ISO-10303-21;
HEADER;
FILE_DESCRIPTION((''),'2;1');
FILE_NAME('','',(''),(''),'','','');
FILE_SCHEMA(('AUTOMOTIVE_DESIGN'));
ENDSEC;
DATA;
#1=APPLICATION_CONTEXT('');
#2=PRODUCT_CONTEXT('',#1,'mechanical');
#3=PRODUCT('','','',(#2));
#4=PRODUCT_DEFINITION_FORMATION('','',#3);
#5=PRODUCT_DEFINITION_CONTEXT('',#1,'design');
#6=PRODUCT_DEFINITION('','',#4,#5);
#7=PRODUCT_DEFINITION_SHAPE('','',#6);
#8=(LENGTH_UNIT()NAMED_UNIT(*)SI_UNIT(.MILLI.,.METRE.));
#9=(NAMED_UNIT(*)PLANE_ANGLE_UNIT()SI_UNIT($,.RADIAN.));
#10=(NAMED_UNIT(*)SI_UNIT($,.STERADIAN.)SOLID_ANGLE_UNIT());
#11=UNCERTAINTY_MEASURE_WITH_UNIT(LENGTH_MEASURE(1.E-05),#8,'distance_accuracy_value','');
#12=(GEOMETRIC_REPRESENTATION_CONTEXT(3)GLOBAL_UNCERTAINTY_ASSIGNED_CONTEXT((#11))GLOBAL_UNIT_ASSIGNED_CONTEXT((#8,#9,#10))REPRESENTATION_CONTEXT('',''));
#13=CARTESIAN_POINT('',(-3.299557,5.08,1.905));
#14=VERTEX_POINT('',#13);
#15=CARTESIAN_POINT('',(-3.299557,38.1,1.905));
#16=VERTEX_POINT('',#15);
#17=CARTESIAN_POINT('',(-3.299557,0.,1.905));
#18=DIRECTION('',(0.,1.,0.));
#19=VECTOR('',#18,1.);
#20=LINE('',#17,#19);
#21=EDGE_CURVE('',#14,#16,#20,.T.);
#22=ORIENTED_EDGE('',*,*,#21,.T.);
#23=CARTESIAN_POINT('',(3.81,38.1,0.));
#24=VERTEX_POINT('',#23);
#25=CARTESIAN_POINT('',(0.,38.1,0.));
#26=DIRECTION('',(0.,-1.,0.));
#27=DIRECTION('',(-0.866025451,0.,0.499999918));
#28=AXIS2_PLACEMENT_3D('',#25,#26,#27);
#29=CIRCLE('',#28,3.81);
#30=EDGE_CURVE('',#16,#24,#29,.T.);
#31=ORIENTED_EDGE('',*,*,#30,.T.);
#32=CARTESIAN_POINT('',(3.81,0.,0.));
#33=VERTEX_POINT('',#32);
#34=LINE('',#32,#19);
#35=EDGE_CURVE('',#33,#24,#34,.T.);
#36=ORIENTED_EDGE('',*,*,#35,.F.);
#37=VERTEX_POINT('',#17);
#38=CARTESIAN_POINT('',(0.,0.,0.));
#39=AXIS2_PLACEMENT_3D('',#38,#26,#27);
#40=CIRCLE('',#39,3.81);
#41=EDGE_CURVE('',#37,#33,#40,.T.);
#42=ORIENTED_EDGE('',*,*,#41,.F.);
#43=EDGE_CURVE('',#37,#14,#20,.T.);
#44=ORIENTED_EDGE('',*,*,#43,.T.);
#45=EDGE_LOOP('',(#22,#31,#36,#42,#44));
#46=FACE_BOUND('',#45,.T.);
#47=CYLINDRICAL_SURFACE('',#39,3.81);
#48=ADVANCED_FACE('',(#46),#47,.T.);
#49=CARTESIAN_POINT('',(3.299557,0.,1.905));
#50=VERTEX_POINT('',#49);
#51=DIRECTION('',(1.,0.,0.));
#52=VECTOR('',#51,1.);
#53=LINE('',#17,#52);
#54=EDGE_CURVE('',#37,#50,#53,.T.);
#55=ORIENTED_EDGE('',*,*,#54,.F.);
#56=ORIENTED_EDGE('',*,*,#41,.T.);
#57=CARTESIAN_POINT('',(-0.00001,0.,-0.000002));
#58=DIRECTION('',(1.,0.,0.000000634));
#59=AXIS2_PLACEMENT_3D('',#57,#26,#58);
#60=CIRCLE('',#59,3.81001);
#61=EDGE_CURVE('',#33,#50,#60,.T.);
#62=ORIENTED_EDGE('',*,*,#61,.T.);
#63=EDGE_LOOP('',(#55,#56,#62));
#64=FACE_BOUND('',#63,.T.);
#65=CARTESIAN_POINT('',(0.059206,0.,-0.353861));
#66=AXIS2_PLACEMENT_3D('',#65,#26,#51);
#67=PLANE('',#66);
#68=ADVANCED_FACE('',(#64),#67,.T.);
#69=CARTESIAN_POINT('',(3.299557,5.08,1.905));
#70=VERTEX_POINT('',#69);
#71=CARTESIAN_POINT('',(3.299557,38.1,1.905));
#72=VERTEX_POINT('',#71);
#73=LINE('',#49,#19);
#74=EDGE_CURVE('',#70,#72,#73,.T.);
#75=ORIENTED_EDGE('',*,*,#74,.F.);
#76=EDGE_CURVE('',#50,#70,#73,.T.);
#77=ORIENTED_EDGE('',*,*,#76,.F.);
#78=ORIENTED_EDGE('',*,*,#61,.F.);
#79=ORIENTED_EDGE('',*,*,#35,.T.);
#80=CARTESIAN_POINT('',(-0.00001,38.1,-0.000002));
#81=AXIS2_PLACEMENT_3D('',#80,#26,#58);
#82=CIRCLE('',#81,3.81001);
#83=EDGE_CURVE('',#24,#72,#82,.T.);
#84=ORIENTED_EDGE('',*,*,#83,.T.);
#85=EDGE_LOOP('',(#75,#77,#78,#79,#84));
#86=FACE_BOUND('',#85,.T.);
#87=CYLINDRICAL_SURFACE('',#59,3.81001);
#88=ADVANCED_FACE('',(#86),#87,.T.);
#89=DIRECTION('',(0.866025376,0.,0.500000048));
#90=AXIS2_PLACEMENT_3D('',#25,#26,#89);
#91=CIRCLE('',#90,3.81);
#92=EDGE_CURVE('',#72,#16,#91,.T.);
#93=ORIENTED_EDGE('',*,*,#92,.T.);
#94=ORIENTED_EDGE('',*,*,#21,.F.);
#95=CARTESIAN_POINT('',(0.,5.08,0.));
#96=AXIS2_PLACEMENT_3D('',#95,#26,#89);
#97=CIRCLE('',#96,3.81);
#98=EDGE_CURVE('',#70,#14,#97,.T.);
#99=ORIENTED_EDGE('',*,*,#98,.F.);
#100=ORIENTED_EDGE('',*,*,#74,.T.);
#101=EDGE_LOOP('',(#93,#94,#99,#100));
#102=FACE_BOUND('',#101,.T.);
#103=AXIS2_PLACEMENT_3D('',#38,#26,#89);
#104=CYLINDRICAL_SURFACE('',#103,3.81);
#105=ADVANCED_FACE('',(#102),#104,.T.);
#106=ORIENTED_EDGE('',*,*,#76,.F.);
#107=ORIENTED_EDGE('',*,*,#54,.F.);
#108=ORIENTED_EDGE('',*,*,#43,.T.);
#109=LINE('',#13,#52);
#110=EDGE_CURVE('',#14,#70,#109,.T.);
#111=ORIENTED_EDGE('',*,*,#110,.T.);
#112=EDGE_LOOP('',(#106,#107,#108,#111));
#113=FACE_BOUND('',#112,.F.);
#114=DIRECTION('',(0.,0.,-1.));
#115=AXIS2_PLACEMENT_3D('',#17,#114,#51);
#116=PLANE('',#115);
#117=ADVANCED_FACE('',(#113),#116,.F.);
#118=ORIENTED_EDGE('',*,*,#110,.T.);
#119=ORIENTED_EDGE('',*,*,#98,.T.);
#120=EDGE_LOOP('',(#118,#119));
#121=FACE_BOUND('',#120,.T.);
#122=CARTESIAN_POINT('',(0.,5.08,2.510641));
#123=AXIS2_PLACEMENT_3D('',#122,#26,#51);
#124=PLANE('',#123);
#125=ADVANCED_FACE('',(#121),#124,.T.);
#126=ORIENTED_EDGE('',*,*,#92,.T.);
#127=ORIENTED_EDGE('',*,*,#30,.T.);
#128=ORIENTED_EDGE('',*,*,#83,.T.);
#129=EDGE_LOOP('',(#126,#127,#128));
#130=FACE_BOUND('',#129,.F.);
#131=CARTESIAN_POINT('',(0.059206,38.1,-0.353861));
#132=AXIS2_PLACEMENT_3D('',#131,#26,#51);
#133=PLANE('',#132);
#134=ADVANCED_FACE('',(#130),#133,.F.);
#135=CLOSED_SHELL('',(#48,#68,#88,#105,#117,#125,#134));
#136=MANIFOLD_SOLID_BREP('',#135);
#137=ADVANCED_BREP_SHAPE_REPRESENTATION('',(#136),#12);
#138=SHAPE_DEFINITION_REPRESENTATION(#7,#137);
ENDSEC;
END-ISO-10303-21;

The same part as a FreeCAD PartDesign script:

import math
import FreeCAD as App
import Part
import Sketcher
from FreeCAD import Vector
Q = App.Units.Quantity

doc = App.newDocument("Part")
params = doc.addObject("Spreadsheet::Sheet", "Params")
for row, (alias, value) in enumerate([
    ("sketch1_radius", "0.15 in"),
    ("pad1_length", "1.5 in"),
    ("sketch2_radius", "0.15 in"),
    ("pocket1_length", "0.2 in"),
], start=1):
    params.set(f"A{row}", alias)
    params.set(f"B{row}", "=" + value)
    params.setAlias(f"B{row}", alias)

body = doc.addObject("PartDesign::Body", "Body")

sketch1 = doc.addObject("Sketcher::SketchObject", "Sketch")
body.addObject(sketch1)
sketch1.AttachmentSupport = (doc.XZ_Plane, [""])
sketch1.MapMode = "FlatFace"
sketch1.addGeometry([
    Part.ArcOfCircle(Part.Circle(Vector(0, 0, 0), Vector(0, 0, 1), 3.8), math.radians(150), math.radians(360)),
    Part.ArcOfCircle(Part.Circle(Vector(0, 0, 0), Vector(0, 0, 1), 3.8), math.radians(0), math.radians(30)),
    Part.ArcOfCircle(Part.Circle(Vector(0, 0, 0), Vector(0, 0, 1), 3.8), math.radians(30), math.radians(150)),
], False)
sketch1.addConstraint([
    Sketcher.Constraint("Tangent", 0, 2, 1, 1),
    Sketcher.Constraint("Tangent", 1, 2, 2, 1),
    Sketcher.Constraint("Tangent", 2, 2, 0, 1),
    Sketcher.Constraint("Coincident", 0, 3, -1, 1),
    Sketcher.Constraint("PointOnObject", 0, 2, -1),
    Sketcher.Constraint("Horizontal", 1, 2, 2, 2),
    Sketcher.Constraint("Radius", 0, Q("0.15 in")),
    Sketcher.Constraint("DistanceY", -1, 1, 1, 2, Q("0.075 in")),
])
sketch1.setExpression("Constraints[6]", "Params.sketch1_radius")
pad1 = doc.addObject("PartDesign::Pad", "Pad")
body.addObject(pad1)
pad1.Profile = sketch1
pad1.setExpression("Length", "Params.pad1_length")
pad1.Reversed = True

sketch2 = doc.addObject("Sketcher::SketchObject", "Sketch001")
body.addObject(sketch2)
sketch2.AttachmentSupport = (doc.XZ_Plane, [""])
sketch2.MapMode = "FlatFace"
sketch2.addGeometry([
    Part.LineSegment(Vector(-3.3, 1.9, 0), Vector(3.3, 1.9, 0)),
    Part.ArcOfCircle(Part.Circle(Vector(0, 0, 0), Vector(0, 0, 1), 3.8), math.radians(30), math.radians(150)),
], False)
sketch2.addConstraint([
    Sketcher.Constraint("Coincident", 0, 1, 1, 2),
    Sketcher.Constraint("Coincident", 1, 1, 0, 2),
    Sketcher.Constraint("Horizontal", 0),
    Sketcher.Constraint("Coincident", 1, 3, -1, 1),
    Sketcher.Constraint("Radius", 1, Q("0.15 in")),
    Sketcher.Constraint("DistanceY", -1, 1, 0, 1, Q("0.075 in")),
])
sketch2.setExpression("Constraints[4]", "Params.sketch2_radius")
pocket1 = doc.addObject("PartDesign::Pocket", "Pocket")
body.addObject(pocket1)
pocket1.Profile = sketch2
pocket1.setExpression("Length", "Params.pocket1_length")

doc.recompute()
